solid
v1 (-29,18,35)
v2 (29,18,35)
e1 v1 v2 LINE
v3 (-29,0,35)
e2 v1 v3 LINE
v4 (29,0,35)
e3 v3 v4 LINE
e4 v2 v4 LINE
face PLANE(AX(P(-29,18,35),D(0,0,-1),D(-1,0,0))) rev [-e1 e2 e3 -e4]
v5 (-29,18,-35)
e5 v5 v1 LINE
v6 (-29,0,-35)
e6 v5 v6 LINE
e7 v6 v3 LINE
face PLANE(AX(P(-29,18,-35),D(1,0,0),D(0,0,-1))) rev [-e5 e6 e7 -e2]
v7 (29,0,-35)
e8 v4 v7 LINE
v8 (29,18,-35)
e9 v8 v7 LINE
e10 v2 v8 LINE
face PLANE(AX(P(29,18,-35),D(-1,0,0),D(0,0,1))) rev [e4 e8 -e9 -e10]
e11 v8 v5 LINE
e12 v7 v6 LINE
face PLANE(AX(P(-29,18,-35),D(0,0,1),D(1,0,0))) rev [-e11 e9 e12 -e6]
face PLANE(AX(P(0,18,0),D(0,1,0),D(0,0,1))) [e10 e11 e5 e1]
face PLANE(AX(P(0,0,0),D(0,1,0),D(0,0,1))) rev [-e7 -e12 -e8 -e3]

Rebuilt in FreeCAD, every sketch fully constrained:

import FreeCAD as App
import Part
import Sketcher

V = App.Vector


def add_polygon(sketch, points):
    """Adds a closed chain of lines whose ends are joined by coincident constraints."""
    first, n = sketch.GeometryCount, len(points)
    for a, b in zip(points, points[1:] + points[:1]):
        sketch.addGeometry(Part.LineSegment(App.Vector(*a, 0), App.Vector(*b, 0)), False)
    for i in range(n):
        sketch.addConstraint(Sketcher.Constraint("Coincident", first + i, 2, first + (i + 1) % n, 1))

doc = App.newDocument("Part")
body = doc.addObject("PartDesign::Body", "Body")

# Sketch on XZ plane
sketch1 = body.newObject("Sketcher::SketchObject", "Sketch")
sketch1.AttachmentSupport = (doc.getObject("XZ_Plane"), [""])
sketch1.MapMode = "FlatFace"
add_polygon(sketch1, [(-29, -35), (-29, 35), (29, 35), (29, -35)])  # lines 0-3
sketch1.addConstraint(Sketcher.Constraint("Vertical", 0))
sketch1.addConstraint(Sketcher.Constraint("Horizontal", 1))
sketch1.addConstraint(Sketcher.Constraint("Vertical", 2))
sketch1.addConstraint(Sketcher.Constraint("Horizontal", 3))
sketch1.addConstraint(Sketcher.Constraint("Symmetric", 0, 2, 2, 2, -1, 1))
sketch1.addConstraint(Sketcher.Constraint("DistanceX", 1, 1, 1, 2, 58.0))
sketch1.addConstraint(Sketcher.Constraint("DistanceY", 0, 1, 0, 2, 70.0))
pad1 = body.newObject("PartDesign::Pad", "Pad")
pad1.Profile = sketch1
pad1.Length = 18
pad1.Reversed = True

doc.recompute()
